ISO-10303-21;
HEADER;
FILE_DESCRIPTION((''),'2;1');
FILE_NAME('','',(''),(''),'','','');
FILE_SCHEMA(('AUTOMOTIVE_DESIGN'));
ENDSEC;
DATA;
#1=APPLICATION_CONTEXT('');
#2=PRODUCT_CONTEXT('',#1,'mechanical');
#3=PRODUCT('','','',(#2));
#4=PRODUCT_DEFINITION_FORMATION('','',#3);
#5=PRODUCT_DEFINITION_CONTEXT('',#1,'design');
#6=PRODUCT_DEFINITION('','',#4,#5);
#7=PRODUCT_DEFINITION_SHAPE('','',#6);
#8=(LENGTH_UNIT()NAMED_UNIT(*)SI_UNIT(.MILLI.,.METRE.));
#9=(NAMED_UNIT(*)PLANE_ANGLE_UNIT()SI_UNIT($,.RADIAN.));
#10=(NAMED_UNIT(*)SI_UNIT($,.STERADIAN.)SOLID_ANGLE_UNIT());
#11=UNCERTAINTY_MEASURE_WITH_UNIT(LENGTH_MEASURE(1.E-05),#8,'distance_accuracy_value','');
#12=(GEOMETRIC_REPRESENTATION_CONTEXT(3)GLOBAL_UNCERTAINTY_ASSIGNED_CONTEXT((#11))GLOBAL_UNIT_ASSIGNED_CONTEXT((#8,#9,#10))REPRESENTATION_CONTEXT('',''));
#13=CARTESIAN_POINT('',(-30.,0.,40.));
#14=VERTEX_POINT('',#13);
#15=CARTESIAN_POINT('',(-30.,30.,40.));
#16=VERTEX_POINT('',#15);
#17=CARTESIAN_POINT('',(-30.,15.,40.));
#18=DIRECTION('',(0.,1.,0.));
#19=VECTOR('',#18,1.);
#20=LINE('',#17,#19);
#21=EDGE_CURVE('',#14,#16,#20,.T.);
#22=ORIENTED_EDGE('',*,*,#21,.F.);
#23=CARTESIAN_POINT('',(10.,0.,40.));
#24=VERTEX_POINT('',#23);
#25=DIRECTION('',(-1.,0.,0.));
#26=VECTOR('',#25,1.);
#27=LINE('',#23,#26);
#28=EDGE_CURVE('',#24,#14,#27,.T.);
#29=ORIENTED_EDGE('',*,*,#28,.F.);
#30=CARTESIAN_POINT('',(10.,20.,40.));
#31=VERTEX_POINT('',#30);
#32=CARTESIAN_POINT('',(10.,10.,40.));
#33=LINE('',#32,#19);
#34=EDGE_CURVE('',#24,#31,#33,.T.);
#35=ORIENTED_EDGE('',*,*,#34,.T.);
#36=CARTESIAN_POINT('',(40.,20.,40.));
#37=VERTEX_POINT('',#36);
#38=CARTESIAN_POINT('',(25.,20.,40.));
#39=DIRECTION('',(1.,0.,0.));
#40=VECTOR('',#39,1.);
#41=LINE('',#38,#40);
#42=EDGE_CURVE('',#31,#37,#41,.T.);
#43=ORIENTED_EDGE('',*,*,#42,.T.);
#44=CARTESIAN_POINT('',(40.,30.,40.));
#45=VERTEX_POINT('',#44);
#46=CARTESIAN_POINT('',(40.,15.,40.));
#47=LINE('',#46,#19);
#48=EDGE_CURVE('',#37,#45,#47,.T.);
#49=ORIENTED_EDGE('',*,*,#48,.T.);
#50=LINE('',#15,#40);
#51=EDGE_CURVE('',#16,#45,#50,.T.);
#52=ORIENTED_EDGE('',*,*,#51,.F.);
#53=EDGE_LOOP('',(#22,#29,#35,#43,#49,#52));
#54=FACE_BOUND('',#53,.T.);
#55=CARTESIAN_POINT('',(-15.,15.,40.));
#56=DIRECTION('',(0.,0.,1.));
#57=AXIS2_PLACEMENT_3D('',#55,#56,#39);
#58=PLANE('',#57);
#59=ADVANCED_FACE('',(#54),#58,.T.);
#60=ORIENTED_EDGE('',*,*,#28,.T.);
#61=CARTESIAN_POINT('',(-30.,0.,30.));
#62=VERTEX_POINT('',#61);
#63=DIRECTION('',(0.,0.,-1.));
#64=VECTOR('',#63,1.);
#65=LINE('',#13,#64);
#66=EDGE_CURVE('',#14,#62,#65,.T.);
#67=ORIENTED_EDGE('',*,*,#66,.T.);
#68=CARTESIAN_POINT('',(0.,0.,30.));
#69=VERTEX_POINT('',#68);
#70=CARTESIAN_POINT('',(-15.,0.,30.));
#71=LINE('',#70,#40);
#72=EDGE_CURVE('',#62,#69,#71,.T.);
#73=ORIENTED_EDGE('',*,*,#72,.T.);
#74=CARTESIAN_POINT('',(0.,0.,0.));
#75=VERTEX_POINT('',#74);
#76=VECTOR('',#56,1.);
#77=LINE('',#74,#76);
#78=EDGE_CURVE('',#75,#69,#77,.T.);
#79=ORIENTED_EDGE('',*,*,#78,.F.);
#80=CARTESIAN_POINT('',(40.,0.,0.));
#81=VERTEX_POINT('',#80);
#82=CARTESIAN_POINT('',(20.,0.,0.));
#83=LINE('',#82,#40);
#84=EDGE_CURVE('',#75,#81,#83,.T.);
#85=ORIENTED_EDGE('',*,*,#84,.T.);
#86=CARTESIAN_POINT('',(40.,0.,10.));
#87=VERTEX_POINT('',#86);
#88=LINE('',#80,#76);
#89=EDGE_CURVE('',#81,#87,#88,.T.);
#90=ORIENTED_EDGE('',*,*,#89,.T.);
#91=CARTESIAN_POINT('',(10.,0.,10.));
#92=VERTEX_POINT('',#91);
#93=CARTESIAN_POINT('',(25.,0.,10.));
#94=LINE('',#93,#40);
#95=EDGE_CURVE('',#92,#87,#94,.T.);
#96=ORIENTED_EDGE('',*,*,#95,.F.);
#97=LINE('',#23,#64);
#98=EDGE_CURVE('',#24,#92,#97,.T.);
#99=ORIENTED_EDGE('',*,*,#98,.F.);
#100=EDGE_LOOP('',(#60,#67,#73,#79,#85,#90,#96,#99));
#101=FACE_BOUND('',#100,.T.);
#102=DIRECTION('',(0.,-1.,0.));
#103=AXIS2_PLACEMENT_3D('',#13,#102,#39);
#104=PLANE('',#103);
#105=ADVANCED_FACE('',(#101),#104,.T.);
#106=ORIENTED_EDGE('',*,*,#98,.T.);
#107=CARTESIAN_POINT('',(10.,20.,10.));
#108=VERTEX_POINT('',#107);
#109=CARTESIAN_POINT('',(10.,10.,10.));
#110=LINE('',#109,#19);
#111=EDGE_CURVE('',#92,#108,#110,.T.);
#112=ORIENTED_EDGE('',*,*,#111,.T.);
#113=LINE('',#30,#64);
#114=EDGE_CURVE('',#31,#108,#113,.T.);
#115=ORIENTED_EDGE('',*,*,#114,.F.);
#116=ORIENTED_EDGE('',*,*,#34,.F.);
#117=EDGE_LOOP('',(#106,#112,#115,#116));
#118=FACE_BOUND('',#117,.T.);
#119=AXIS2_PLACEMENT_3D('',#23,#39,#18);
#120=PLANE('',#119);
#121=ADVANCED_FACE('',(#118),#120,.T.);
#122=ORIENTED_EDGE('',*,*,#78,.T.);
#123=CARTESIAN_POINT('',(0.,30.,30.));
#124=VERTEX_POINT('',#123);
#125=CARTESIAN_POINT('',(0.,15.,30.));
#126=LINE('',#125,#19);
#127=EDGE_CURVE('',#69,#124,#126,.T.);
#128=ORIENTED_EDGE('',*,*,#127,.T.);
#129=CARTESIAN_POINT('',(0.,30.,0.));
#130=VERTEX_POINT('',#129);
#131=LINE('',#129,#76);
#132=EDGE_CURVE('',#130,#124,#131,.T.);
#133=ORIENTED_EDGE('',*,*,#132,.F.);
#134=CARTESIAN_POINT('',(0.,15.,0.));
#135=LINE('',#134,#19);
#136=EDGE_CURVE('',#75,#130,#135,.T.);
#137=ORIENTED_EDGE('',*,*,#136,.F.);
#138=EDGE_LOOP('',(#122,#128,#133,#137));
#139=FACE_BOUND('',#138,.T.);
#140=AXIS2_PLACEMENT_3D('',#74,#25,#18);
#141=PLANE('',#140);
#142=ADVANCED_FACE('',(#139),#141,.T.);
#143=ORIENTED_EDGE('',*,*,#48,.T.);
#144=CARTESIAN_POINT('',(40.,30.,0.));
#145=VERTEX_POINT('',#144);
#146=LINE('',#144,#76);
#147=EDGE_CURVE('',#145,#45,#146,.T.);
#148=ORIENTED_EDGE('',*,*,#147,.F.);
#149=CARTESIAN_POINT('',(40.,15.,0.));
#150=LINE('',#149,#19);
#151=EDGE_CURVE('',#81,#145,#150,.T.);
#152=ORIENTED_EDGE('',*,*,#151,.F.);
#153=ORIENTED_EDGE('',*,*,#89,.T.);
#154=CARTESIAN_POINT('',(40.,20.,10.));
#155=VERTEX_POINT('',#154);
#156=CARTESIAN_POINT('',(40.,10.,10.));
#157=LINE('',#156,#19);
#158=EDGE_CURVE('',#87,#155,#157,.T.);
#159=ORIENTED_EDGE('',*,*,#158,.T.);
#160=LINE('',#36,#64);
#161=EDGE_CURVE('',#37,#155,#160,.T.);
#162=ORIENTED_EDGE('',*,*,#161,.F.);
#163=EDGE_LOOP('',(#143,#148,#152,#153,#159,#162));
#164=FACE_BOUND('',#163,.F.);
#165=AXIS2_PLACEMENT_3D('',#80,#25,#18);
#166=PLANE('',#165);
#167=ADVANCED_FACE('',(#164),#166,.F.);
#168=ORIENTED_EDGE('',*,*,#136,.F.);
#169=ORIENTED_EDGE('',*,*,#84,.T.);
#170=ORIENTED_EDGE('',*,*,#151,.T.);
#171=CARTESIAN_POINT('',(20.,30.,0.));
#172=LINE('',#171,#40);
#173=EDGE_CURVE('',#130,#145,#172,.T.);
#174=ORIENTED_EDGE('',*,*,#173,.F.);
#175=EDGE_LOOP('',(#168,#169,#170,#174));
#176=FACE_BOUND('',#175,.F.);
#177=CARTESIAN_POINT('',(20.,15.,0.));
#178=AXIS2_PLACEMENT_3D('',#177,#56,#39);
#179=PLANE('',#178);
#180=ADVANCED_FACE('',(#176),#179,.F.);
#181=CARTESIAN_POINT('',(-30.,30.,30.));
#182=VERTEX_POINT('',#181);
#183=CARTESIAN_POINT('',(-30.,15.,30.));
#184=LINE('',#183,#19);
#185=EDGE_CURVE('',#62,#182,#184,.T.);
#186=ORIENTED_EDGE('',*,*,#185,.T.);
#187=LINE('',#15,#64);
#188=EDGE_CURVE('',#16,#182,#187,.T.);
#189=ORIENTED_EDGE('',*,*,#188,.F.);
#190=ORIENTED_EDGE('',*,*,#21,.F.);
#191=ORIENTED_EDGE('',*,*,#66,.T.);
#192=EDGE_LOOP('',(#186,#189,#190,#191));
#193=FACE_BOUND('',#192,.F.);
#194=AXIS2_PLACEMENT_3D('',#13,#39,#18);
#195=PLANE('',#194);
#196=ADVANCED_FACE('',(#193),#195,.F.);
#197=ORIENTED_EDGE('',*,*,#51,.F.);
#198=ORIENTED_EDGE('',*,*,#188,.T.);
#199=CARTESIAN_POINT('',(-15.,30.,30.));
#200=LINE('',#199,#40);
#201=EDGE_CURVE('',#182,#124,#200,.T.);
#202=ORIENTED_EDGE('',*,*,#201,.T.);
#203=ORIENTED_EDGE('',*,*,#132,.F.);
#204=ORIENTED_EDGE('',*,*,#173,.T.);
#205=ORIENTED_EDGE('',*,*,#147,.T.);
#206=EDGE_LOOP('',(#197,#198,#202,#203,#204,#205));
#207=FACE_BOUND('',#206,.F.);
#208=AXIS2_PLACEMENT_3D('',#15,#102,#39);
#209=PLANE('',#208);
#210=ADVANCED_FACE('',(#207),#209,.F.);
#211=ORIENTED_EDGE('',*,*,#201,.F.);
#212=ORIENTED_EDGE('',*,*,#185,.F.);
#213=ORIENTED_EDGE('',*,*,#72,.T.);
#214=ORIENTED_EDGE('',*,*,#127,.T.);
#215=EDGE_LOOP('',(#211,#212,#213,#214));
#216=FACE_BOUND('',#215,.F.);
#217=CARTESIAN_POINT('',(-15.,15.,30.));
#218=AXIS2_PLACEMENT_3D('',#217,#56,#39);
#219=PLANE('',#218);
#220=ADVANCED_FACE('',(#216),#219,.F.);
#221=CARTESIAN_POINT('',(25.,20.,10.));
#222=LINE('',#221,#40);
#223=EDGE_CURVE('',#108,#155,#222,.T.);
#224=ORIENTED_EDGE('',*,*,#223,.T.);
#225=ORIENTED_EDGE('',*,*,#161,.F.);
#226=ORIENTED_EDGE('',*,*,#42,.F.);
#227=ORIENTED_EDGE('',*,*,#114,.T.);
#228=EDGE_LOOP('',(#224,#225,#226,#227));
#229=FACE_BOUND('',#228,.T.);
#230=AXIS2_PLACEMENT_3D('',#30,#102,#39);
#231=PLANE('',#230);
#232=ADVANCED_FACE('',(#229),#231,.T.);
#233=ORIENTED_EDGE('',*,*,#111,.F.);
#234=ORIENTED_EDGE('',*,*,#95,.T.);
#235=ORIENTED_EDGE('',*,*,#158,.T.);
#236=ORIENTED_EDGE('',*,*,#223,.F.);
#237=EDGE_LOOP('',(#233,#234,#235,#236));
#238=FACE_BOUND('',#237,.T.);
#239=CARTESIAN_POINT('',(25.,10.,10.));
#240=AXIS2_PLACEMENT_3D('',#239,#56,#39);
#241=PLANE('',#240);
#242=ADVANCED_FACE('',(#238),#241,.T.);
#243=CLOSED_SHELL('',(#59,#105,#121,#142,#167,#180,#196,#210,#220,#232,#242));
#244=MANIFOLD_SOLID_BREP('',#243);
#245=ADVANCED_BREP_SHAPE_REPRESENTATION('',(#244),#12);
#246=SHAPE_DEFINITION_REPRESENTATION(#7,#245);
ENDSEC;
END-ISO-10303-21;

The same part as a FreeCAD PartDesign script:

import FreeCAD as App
import Part
import Sketcher
from FreeCAD import Vector
Q = App.Units.Quantity


def add_polygon(sketch, points):
    """Adds a closed chain of lines whose ends are joined by coincident constraints."""
    first, n = sketch.GeometryCount, len(points)
    for a, b in zip(points, points[1:] + points[:1]):
        sketch.addGeometry(Part.LineSegment(App.Vector(*a, 0), App.Vector(*b, 0)), False)
    for i in range(n):
        sketch.addConstraint(Sketcher.Constraint("Coincident", first + i, 2, first + (i + 1) % n, 1))

doc = App.newDocument("Part")
body = doc.addObject("PartDesign::Body", "Body")

# Sketch on XY plane
sketch1 = doc.addObject("Sketcher::SketchObject", "Sketch")
body.addObject(sketch1)
sketch1.AttachmentSupport = (doc.XY_Plane, [""])
sketch1.MapMode = "FlatFace"
add_polygon(sketch1, [(0, 30), (0, 0), (40, 0), (40, 30)])  # lines 0-3
sketch1.addConstraint([
    Sketcher.Constraint("Vertical", 0),
    Sketcher.Constraint("Horizontal", 1),
    Sketcher.Constraint("Vertical", 2),
    Sketcher.Constraint("Horizontal", 3),
    Sketcher.Constraint("Coincident", 0, 2, -1, 1),
    Sketcher.Constraint("DistanceX", 1, 1, 1, 2, Q("40 mm")),
    Sketcher.Constraint("DistanceY", 0, 2, 0, 1, Q("30 mm")),
])
pad1 = doc.addObject("PartDesign::Pad", "Pad")
body.addObject(pad1)
pad1.Profile = sketch1
pad1.Length = 40

# Sketch on XY plane
sketch2 = doc.addObject("Sketcher::SketchObject", "Sketch001")
body.addObject(sketch2)
sketch2.AttachmentSupport = (doc.XY_Plane, [""])
sketch2.MapMode = "FlatFace"
sketch2.AttachmentOffset = App.Placement(Vector(0, 0, 40), App.Rotation())
add_polygon(sketch2, [(10, 20), (10, 0), (40, 0), (40, 20)])  # lines 0-3
sketch2.addConstraint([
    Sketcher.Constraint("Vertical", 0),
    Sketcher.Constraint("Horizontal", 1),
    Sketcher.Constraint("Vertical", 2),
    Sketcher.Constraint("Horizontal", 3),
    Sketcher.Constraint("PointOnObject", 0, 2, -1),
    Sketcher.Constraint("DistanceX", 1, 1, 1, 2, Q("30 mm")),
    Sketcher.Constraint("DistanceY", 0, 2, 0, 1, Q("20 mm")),
    Sketcher.Constraint("DistanceX", -1, 1, 0, 2, Q("10 mm")),
])
pocket1 = doc.addObject("PartDesign::Pocket", "Pocket")
body.addObject(pocket1)
pocket1.Profile = sketch2
pocket1.Length = 30

# Sketch on XY plane
sketch3 = doc.addObject("Sketcher::SketchObject", "Sketch002")
body.addObject(sketch3)
sketch3.AttachmentSupport = (doc.XY_Plane, [""])
sketch3.MapMode = "FlatFace"
sketch3.AttachmentOffset = App.Placement(Vector(0, 0, 40), App.Rotation())
add_polygon(sketch3, [(-30, 30), (-30, 0), (0, 0), (0, 30)])  # lines 0-3
sketch3.addConstraint([
    Sketcher.Constraint("Vertical", 0),
    Sketcher.Constraint("Horizontal", 1),
    Sketcher.Constraint("Vertical", 2),
    Sketcher.Constraint("Horizontal", 3),
    Sketcher.Constraint("Coincident", 1, 2, -1, 1),
    Sketcher.Constraint("Equal", 3, 0),
    Sketcher.Constraint("DistanceX", 1, 1, 1, 2, Q("30 mm")),
])
pad2 = doc.addObject("PartDesign::Pad", "Pad001")
body.addObject(pad2)
pad2.Profile = sketch3
pad2.Length = 10
pad2.Reversed = True

doc.recompute()
